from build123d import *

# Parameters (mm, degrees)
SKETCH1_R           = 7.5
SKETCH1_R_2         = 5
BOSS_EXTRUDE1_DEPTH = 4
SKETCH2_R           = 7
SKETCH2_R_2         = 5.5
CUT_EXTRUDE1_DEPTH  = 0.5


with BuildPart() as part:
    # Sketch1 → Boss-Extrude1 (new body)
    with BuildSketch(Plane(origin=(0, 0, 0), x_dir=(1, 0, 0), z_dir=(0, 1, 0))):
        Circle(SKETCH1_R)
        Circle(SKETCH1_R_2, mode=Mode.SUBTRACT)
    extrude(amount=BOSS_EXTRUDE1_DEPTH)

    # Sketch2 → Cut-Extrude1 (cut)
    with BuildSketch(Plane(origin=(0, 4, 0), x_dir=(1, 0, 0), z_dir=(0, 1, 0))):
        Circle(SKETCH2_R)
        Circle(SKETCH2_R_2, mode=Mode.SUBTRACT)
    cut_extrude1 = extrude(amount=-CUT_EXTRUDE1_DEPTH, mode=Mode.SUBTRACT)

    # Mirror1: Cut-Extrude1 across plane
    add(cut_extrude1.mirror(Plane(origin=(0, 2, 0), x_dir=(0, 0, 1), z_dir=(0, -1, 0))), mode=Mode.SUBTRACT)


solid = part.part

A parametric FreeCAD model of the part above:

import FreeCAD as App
import Part
import Sketcher
from FreeCAD import Vector
Q = App.Units.Quantity

doc = App.newDocument("Part")
params = doc.addObject("Spreadsheet::Sheet", "Params")
for row, (alias, value) in enumerate([
    ("sketch1_diameter", "15 mm"),
    ("sketch1_diameter2", "10 mm"),
    ("pad1_length", "4 mm"),
    ("sketch2_diameter", "14 mm"),
    ("sketch2_diameter2", "11 mm"),
    ("pocket1_length", "0.5 mm"),
], start=1):
    params.set(f"A{row}", alias)
    params.set(f"B{row}", "=" + value)
    params.setAlias(f"B{row}", alias)

body = doc.addObject("PartDesign::Body", "Body")

# Sketch on XZ plane
sketch1 = body.newObject("Sketcher::SketchObject", "Sketch")
sketch1.AttachmentSupport = (doc.getObject("XZ_Plane"), [""])
sketch1.MapMode = "FlatFace"
sketch1.addGeometry(Part.Circle(Vector(0, 0, 0), Vector(0, 0, 1), 8), False)
sketch1.addGeometry(Part.Circle(Vector(0, 0, 0), Vector(0, 0, 1), 5), False)
sketch1.addConstraint(Sketcher.Constraint("Coincident", 0, 3, -1, 1))
sketch1.addConstraint(Sketcher.Constraint("Coincident", 1, 3, -1, 1))
sketch1.addConstraint(Sketcher.Constraint("Diameter", 0, Q("15 mm")))
sketch1.addConstraint(Sketcher.Constraint("Diameter", 1, Q("10 mm")))
sketch1.setExpression("Constraints[2]", "Params.sketch1_diameter")
sketch1.setExpression("Constraints[3]", "Params.sketch1_diameter2")
pad1 = body.newObject("PartDesign::Pad", "Pad")
pad1.Profile = sketch1
pad1.setExpression("Length", "Params.pad1_length")
pad1.Reversed = True

# Sketch on XZ plane
sketch2 = body.newObject("Sketcher::SketchObject", "Sketch001")
sketch2.AttachmentSupport = (doc.getObject("XZ_Plane"), [""])
sketch2.MapMode = "FlatFace"
sketch2.AttachmentOffset = App.Placement(Vector(0, 0, -4), App.Rotation())
sketch2.addGeometry(Part.Circle(Vector(0, 0, 0), Vector(0, 0, 1), 7), False)
sketch2.addGeometry(Part.Circle(Vector(0, 0, 0), Vector(0, 0, 1), 6), False)
sketch2.addConstraint(Sketcher.Constraint("Coincident", 0, 3, -1, 1))
sketch2.addConstraint(Sketcher.Constraint("Coincident", 1, 3, -1, 1))
sketch2.addConstraint(Sketcher.Constraint("Diameter", 0, Q("14 mm")))
sketch2.addConstraint(Sketcher.Constraint("Diameter", 1, Q("11 mm")))
sketch2.setExpression("Constraints[2]", "Params.sketch2_diameter")
sketch2.setExpression("Constraints[3]", "Params.sketch2_diameter2")
pocket1 = body.newObject("PartDesign::Pocket", "Pocket")
pocket1.Profile = sketch2
pocket1.setExpression("Length", "Params.pocket1_length")
pocket1.Reversed = True
doc.recompute()

datumplane = body.newObject("PartDesign::Plane", "DatumPlane")
datumplane.AttachmentSupport = (doc.getObject("XZ_Plane"), [""])
datumplane.MapMode = "FlatFace"
datumplane.AttachmentOffset = App.Placement(Vector(0, 0, -2), App.Rotation())
mirrored = body.newObject("PartDesign::Mirrored", "Mirrored")
mirrored.Originals = [pocket1]
mirrored.MirrorPlane = (datumplane, [""])
body.Tip = mirrored

doc.recompute()
